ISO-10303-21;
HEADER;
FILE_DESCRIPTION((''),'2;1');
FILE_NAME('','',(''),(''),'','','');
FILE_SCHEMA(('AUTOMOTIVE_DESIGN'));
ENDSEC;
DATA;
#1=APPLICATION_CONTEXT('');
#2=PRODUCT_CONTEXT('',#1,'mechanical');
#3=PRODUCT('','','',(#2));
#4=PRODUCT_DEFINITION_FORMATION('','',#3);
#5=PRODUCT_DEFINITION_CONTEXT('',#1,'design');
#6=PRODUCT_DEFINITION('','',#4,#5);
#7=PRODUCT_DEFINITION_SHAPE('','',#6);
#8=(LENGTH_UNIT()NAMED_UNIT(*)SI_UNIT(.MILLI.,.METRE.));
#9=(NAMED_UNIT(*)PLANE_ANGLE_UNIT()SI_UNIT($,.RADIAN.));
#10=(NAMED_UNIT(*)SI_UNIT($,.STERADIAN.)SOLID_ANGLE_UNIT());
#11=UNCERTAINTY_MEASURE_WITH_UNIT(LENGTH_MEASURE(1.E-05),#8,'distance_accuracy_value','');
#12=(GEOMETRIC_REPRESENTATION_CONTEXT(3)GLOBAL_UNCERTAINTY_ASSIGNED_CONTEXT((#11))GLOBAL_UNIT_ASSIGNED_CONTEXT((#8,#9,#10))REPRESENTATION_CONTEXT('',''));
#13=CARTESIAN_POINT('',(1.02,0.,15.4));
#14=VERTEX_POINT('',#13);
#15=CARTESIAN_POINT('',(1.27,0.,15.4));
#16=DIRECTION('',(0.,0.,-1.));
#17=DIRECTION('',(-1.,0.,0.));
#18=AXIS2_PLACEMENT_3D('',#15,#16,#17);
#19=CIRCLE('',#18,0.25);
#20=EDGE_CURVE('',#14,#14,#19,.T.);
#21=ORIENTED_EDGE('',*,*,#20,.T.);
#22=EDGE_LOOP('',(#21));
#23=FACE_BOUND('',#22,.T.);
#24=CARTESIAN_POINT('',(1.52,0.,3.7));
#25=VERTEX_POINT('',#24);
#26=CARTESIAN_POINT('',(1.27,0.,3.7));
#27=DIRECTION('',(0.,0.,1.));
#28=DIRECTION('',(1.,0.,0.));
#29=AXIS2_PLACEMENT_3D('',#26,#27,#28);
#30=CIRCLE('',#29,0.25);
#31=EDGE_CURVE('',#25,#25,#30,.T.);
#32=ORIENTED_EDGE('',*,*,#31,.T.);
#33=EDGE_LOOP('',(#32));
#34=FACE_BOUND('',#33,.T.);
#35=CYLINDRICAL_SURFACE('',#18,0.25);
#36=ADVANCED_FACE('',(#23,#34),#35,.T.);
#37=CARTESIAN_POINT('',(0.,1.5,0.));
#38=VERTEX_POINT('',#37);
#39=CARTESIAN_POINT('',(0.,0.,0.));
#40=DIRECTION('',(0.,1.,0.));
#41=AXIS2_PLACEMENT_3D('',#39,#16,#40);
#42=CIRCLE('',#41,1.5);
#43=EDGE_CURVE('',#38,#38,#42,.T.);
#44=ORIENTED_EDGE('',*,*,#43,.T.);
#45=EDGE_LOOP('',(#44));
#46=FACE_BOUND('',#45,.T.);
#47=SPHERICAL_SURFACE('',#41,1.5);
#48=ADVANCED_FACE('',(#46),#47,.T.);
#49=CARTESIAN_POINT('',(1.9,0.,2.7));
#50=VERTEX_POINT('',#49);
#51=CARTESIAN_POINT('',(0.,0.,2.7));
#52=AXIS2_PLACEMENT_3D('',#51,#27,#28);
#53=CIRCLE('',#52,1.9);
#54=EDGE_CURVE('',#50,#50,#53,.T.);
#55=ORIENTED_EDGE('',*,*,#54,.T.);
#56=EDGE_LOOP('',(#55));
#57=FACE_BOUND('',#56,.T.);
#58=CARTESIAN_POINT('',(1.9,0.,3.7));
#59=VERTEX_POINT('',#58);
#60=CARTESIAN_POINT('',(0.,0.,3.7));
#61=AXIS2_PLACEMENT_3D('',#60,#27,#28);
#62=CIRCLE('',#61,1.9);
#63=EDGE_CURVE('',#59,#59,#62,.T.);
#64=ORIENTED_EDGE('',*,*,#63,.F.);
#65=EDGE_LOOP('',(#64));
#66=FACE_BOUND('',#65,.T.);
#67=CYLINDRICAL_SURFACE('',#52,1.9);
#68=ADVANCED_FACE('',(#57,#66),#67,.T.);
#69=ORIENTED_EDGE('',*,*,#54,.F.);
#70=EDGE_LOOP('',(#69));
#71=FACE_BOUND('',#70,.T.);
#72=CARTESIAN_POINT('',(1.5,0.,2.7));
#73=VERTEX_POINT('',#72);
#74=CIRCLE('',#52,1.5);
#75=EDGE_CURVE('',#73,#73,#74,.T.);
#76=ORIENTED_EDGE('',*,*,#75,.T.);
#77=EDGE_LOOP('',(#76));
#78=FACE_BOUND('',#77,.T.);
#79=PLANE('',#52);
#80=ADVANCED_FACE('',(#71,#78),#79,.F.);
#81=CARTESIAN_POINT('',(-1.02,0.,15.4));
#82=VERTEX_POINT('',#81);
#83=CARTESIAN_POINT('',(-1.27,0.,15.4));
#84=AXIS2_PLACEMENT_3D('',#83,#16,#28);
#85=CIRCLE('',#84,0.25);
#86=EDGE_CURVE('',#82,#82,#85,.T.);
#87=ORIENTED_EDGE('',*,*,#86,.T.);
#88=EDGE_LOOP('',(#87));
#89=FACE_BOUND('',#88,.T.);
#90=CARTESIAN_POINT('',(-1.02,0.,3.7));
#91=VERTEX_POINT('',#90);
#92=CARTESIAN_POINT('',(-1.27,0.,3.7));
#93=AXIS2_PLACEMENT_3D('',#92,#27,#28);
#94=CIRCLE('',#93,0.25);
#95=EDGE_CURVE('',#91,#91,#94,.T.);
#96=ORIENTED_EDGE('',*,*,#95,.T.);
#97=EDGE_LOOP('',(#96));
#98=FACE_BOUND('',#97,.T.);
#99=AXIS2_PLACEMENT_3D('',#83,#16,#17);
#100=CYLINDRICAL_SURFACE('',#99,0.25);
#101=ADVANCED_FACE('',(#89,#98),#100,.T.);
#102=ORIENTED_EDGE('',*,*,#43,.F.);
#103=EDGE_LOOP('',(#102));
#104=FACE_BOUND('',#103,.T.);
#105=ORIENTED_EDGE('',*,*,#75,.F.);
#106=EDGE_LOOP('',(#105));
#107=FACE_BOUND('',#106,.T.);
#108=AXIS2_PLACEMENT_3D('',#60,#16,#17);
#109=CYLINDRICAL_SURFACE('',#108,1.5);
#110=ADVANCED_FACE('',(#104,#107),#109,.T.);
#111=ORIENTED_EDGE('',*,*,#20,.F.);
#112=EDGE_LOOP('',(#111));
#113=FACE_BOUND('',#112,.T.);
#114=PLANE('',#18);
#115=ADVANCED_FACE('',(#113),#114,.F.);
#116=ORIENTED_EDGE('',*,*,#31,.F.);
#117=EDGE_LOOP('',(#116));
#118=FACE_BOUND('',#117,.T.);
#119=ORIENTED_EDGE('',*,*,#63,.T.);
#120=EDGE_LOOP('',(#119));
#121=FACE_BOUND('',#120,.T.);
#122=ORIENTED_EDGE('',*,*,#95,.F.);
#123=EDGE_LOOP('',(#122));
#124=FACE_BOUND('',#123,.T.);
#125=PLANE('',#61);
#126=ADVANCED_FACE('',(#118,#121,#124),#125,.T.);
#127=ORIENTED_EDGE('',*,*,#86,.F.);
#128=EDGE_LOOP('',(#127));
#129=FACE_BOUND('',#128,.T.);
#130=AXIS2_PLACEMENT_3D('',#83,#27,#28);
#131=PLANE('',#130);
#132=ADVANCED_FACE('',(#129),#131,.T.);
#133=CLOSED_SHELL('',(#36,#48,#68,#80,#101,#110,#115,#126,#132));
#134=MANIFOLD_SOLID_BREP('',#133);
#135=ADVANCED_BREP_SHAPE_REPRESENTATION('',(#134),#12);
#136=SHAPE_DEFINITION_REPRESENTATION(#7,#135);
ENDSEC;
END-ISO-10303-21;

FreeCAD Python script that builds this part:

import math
import FreeCAD as App
import Part
import Sketcher

V = App.Vector

doc = App.newDocument("Part")
body = doc.addObject("PartDesign::Body", "Body")

sketch1 = doc.addObject("Sketcher::SketchObject", "Sketch")
body.addObject(sketch1)
sketch1.AttachmentSupport = (doc.XY_Plane, [""])
sketch1.MapMode = "FlatFace"
sketch1.addGeometry(Part.Circle(V(0, 0, 0), V(0, 0, 1), 1.5), False)
sketch1.addConstraint(Sketcher.Constraint("Coincident", 0, 3, -1, 1))
sketch1.addConstraint(Sketcher.Constraint("Diameter", 0, 3.0))
pad1 = doc.addObject("PartDesign::Pad", "Pad")
body.addObject(pad1)
pad1.Profile = sketch1
pad1.Length = 3.7

sketch2 = doc.addObject("Sketcher::SketchObject", "Sketch001")
body.addObject(sketch2)
sketch2.AttachmentSupport = (doc.XY_Plane, [""])
sketch2.MapMode = "FlatFace"
sketch2.AttachmentOffset = App.Placement(V(0, 0, 3.7), App.Rotation())
sketch2.addGeometry(Part.Circle(V(0, 0, 0), V(0, 0, 1), 1.9), False)
sketch2.addConstraint(Sketcher.Constraint("Coincident", 0, 3, -1, 1))
sketch2.addConstraint(Sketcher.Constraint("Diameter", 0, 3.8))
pad2 = doc.addObject("PartDesign::Pad", "Pad001")
body.addObject(pad2)
pad2.Profile = sketch2
pad2.Length = 1
pad2.Reversed = True

sketch3 = doc.addObject("Sketcher::SketchObject", "Sketch002")
body.addObject(sketch3)
sketch3.AttachmentSupport = (doc.XY_Plane, [""])
sketch3.MapMode = "FlatFace"
sketch3.AttachmentOffset = App.Placement(V(0, 0, 2.7), App.Rotation())
sketch3.addGeometry(Part.Circle(V(1.27, 0, 0), V(0, 0, 1), 0.25), False)
sketch3.addGeometry(Part.Circle(V(-1.27, 0, 0), V(0, 0, 1), 0.25), False)
sketch3.addConstraint(Sketcher.Constraint("Equal", 0, 1))
sketch3.addConstraint(Sketcher.Constraint("Symmetric", 0, 3, 1, 3, -1, 1))
sketch3.addConstraint(Sketcher.Constraint("PointOnObject", 0, 3, -1))
sketch3.addConstraint(Sketcher.Constraint("Diameter", 0, 0.5))
sketch3.addConstraint(Sketcher.Constraint("DistanceX", -1, 1, 0, 3, 1.27))
pad3 = doc.addObject("PartDesign::Pad", "Pad002")
body.addObject(pad3)
pad3.Profile = sketch3
pad3.Length = 12.7

sketch4 = doc.addObject("Sketcher::SketchObject", "Sketch003")
body.addObject(sketch4)
sketch4.AttachmentSupport = (doc.YZ_Plane, [""])
sketch4.MapMode = "FlatFace"
sketch4.addGeometry(Part.LineSegment(V(1.5, 0, 0), V(0, 0, 0)), False)
sketch4.addGeometry(Part.LineSegment(V(0, 0, 0), V(0, -1.5, 0)), False)
sketch4.addGeometry(Part.ArcOfCircle(Part.Circle(V(0, 0, 0), V(0, 0, 1), 1.5), math.radians(-90), math.radians(0)), False)
sketch4.addConstraint(Sketcher.Constraint("Coincident", 0, 2, 1, 1))
sketch4.addConstraint(Sketcher.Constraint("Coincident", 1, 2, 2, 1))
sketch4.addConstraint(Sketcher.Constraint("Coincident", 2, 2, 0, 1))
sketch4.addConstraint(Sketcher.Constraint("Horizontal", 0))
sketch4.addConstraint(Sketcher.Constraint("Vertical", 1))
sketch4.addConstraint(Sketcher.Constraint("Coincident", 2, 3, -1, 1))
sketch4.addConstraint(Sketcher.Constraint("Coincident", 0, 2, -1, 1))
sketch4.addConstraint(Sketcher.Constraint("Radius", 2, 1.5))
revolution = doc.addObject("PartDesign::Revolution", "Revolution")
body.addObject(revolution)
revolution.Profile = sketch4
revolution.ReferenceAxis = (sketch4, ["V_Axis"])
revolution.Angle = 360

doc.recompute()
